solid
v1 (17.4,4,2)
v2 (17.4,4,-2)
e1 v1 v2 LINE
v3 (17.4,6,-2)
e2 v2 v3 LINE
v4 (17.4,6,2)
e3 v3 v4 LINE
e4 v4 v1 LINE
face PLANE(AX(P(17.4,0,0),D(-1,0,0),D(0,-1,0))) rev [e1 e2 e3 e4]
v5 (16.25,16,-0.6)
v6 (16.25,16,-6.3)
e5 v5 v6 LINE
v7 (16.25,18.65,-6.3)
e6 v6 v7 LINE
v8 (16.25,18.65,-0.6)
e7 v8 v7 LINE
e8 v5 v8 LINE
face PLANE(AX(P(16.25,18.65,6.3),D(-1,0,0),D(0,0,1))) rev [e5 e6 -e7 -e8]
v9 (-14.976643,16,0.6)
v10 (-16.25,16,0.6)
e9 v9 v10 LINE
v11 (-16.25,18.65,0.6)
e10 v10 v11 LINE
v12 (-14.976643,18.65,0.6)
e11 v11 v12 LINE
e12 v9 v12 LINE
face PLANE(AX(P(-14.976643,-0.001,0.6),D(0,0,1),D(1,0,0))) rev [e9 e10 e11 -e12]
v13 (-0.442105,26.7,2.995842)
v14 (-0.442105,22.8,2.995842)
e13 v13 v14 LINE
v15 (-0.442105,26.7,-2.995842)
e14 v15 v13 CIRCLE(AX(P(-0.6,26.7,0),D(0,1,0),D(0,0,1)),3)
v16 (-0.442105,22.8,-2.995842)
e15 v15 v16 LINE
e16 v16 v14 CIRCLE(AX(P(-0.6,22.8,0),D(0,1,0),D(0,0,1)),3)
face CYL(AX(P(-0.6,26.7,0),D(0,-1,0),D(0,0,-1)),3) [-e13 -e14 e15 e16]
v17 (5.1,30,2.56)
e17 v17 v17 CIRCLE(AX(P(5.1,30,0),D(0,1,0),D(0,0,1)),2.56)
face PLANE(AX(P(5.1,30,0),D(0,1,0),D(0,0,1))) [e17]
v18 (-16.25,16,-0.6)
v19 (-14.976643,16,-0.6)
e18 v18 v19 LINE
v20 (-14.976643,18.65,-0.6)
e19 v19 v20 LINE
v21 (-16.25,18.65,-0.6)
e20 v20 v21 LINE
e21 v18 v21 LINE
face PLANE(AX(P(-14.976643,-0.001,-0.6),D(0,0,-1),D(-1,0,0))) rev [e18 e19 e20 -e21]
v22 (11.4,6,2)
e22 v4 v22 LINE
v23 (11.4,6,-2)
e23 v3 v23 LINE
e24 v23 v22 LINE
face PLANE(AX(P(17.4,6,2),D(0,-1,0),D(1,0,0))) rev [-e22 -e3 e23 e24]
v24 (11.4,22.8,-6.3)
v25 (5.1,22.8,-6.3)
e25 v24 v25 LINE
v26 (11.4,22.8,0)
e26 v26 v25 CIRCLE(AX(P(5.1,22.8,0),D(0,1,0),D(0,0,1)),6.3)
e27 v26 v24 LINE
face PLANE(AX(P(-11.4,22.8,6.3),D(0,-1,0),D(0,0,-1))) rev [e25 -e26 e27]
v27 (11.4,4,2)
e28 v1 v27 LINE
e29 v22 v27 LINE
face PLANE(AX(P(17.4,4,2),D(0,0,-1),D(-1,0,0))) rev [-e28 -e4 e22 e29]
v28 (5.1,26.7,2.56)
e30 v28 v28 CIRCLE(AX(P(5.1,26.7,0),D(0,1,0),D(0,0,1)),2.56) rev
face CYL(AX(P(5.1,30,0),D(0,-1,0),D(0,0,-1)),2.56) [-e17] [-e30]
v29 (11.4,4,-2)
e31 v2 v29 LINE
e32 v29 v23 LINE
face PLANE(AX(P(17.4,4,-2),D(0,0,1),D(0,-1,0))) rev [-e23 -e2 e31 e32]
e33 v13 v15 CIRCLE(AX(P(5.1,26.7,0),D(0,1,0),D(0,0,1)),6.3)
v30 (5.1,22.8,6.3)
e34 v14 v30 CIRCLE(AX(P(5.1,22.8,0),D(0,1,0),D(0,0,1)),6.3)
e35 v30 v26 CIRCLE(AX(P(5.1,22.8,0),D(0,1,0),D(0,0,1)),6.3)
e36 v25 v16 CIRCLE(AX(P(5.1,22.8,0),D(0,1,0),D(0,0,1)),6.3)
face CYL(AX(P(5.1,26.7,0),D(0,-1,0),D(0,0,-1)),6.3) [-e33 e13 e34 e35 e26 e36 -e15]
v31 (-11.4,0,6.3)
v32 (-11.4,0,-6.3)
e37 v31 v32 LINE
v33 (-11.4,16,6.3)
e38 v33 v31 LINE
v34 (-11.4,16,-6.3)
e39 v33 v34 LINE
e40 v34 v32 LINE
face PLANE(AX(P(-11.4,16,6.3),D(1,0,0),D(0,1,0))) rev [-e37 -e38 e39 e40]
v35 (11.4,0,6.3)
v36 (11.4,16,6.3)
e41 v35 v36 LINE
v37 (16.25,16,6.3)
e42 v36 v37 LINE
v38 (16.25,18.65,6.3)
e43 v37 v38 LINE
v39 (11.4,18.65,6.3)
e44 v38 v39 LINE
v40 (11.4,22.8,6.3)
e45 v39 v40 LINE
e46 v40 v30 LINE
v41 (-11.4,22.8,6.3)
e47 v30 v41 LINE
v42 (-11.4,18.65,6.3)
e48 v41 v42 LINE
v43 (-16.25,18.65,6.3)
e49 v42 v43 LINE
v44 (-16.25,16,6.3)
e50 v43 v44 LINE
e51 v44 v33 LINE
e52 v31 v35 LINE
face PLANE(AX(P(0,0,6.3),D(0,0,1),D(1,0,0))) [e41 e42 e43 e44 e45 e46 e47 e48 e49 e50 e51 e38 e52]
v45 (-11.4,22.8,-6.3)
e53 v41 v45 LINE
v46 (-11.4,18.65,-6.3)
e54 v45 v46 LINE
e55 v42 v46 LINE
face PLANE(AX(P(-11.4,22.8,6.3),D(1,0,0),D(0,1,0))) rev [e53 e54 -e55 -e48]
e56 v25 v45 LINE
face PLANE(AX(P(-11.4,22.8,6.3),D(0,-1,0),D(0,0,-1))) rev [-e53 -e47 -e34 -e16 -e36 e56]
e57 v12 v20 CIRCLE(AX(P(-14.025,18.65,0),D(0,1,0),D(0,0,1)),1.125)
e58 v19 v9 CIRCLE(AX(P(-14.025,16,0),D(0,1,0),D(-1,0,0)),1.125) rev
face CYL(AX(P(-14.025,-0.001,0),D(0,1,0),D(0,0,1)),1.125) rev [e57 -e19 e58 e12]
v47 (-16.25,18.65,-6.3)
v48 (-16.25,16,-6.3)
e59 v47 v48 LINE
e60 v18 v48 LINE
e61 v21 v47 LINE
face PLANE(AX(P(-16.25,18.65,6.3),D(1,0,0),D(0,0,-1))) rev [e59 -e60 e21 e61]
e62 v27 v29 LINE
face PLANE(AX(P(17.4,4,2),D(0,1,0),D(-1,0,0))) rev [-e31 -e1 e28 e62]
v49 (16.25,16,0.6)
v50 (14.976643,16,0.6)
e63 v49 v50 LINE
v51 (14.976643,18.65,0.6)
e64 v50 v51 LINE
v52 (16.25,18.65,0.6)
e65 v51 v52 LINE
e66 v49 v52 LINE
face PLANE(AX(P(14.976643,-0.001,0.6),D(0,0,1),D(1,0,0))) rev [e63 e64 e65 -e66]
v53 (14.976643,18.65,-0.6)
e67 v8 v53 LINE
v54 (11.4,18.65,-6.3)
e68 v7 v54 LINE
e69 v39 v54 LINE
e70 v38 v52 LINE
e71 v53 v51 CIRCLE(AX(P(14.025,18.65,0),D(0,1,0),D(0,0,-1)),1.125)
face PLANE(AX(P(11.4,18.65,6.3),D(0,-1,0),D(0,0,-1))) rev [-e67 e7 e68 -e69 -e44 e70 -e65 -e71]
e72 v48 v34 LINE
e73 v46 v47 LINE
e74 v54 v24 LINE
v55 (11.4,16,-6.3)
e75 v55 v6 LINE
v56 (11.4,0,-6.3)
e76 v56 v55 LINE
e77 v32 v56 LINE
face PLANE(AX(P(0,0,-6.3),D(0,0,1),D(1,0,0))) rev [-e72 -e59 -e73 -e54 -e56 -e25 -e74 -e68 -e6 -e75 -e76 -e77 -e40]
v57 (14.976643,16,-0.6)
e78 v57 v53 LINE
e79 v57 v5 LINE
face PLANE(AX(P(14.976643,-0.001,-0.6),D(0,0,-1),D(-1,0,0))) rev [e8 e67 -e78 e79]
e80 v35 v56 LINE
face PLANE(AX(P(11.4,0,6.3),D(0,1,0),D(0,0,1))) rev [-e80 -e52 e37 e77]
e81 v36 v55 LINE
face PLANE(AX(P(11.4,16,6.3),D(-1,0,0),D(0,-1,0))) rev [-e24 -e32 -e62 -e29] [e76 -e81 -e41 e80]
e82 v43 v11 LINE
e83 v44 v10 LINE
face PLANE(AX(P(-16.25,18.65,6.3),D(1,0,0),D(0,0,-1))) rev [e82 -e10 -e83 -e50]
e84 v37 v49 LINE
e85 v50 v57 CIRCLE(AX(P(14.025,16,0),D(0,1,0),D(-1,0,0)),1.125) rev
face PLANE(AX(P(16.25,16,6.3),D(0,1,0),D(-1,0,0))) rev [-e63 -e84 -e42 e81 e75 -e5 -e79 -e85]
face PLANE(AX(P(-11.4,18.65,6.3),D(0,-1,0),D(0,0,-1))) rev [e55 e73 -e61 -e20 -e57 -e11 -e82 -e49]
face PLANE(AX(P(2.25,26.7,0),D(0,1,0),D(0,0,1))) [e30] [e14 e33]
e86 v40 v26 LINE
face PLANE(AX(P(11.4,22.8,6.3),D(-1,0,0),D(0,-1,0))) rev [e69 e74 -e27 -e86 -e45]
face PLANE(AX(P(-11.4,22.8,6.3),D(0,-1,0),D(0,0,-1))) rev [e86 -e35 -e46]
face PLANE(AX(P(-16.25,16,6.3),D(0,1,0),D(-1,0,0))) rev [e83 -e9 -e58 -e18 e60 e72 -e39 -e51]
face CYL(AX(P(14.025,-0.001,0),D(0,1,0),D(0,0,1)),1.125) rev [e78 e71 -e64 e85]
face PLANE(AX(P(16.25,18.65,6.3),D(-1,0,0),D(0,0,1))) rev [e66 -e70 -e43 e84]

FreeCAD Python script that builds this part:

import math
import FreeCAD as App
import Part
import Sketcher
from FreeCAD import Vector
Q = App.Units.Quantity


def add_polygon(sketch, points):
    """Adds a closed chain of lines whose ends are joined by coincident constraints."""
    first, n = sketch.GeometryCount, len(points)
    for a, b in zip(points, points[1:] + points[:1]):
        sketch.addGeometry(Part.LineSegment(App.Vector(*a, 0), App.Vector(*b, 0)), False)
    for i in range(n):
        sketch.addConstraint(Sketcher.Constraint("Coincident", first + i, 2, first + (i + 1) % n, 1))

doc = App.newDocument("Part")
body = doc.addObject("PartDesign::Body", "Body")

# Sketch on XY plane
sketch1 = body.newObject("Sketcher::SketchObject", "Sketch")
sketch1.AttachmentSupport = (doc.getObject("XY_Plane"), [""])
sketch1.MapMode = "FlatFace"
add_polygon(sketch1, [(11.4, 22.8), (-11.4, 22.8), (-11.4, 18.6), (-16.2, 18.6), (-16.2, 16), (-11.4, 16), (-11.4, 0), (11.4, 0), (11.4, 16), (16.2, 16), (16.2, 18.6), (11.4, 18.6)])  # lines 0-11
sketch1.addConstraint(Sketcher.Constraint("Horizontal", 0))
sketch1.addConstraint(Sketcher.Constraint("Vertical", 1))
sketch1.addConstraint(Sketcher.Constraint("Horizontal", 2))
sketch1.addConstraint(Sketcher.Constraint("Vertical", 3))
sketch1.addConstraint(Sketcher.Constraint("Horizontal", 4))
sketch1.addConstraint(Sketcher.Constraint("Vertical", 5))
sketch1.addConstraint(Sketcher.Constraint("Horizontal", 6))
sketch1.addConstraint(Sketcher.Constraint("Vertical", 7))
sketch1.addConstraint(Sketcher.Constraint("Horizontal", 8))
sketch1.addConstraint(Sketcher.Constraint("Vertical", 9))
sketch1.addConstraint(Sketcher.Constraint("Horizontal", 10))
sketch1.addConstraint(Sketcher.Constraint("Vertical", 11))
sketch1.addConstraint(Sketcher.Constraint("Symmetric", 5, 2, 6, 2, -1, 1))
sketch1.addConstraint(Sketcher.Constraint("Symmetric", 3, 2, 8, 2, -2))
sketch1.addConstraint(Sketcher.Constraint("Symmetric", 1, 2, 10, 2, -2))
sketch1.addConstraint(Sketcher.Constraint("Vertical", 1, 2, 4, 2))
sketch1.addConstraint(Sketcher.Constraint("DistanceY", 5, 2, 5, 1, Q("16 mm")))
sketch1.addConstraint(Sketcher.Constraint("DistanceX", 0, 2, 0, 1, Q("22.8 mm")))
sketch1.addConstraint(Sketcher.Constraint("DistanceX", 2, 2, 2, 1, Q("4.85 mm")))
sketch1.addConstraint(Sketcher.Constraint("DistanceY", 1, 2, 1, 1, Q("4.15 mm")))
sketch1.addConstraint(Sketcher.Constraint("DistanceY", 3, 2, 3, 1, Q("2.65 mm")))
pad1 = body.newObject("PartDesign::Pad", "Pad")
pad1.Profile = sketch1
pad1.Length = 12.6
pad1.Midplane = True

# Sketch on XZ plane
sketch2 = body.newObject("Sketcher::SketchObject", "Sketch001")
sketch2.AttachmentSupport = (doc.getObject("XZ_Plane"), [""])
sketch2.MapMode = "FlatFace"
sketch2.AttachmentOffset = App.Placement(Vector(0, 0, -22.8), App.Rotation())
sketch2.addGeometry(Part.ArcOfCircle(Part.Circle(Vector(5.1, 0, 0), Vector(0, 0, 1), 6.3), math.radians(-152), math.radians(152)), False)
sketch2.addGeometry(Part.ArcOfCircle(Part.Circle(Vector(-0.6, 0, 0), Vector(0, 0, 1), 3), math.radians(87), math.radians(273)), False)
sketch2.addConstraint(Sketcher.Constraint("Coincident", 0, 1, 1, 2))
sketch2.addConstraint(Sketcher.Constraint("Coincident", 1, 1, 0, 2))
sketch2.addConstraint(Sketcher.Constraint("Symmetric", 0, 1, 1, 1, -1))
sketch2.addConstraint(Sketcher.Constraint("Radius", 1, Q("3 mm")))
sketch2.addConstraint(Sketcher.Constraint("Radius", 0, Q("6.3 mm")))
sketch2.addConstraint(Sketcher.Constraint("DistanceX", -1, 1, 0, 3, Q("5.1 mm")))
sketch2.addConstraint(Sketcher.Constraint("DistanceX", 1, 3, -1, 1, Q("0.6 mm")))
pad2 = body.newObject("PartDesign::Pad", "Pad001")
pad2.Profile = sketch2
pad2.Length = 3.9
pad2.Reversed = True

# Sketch on XZ plane
sketch3 = body.newObject("Sketcher::SketchObject", "Sketch002")
sketch3.AttachmentSupport = (doc.getObject("XZ_Plane"), [""])
sketch3.MapMode = "FlatFace"
sketch3.addGeometry(Part.Circle(Vector(5.1, 0, 0), Vector(0, 0, 1), 2.6), False)
sketch3.addConstraint(Sketcher.Constraint("PointOnObject", 0, 3, -1))
sketch3.addConstraint(Sketcher.Constraint("Diameter", 0, Q("5.12 mm")))
sketch3.addConstraint(Sketcher.Constraint("DistanceX", -1, 1, 0, 3, Q("5.1 mm")))
pad3 = body.newObject("PartDesign::Pad", "Pad002")
pad3.Profile = sketch3
pad3.Length = 30
pad3.Reversed = True

# Sketch on XZ plane
sketch4 = body.newObject("Sketcher::SketchObject", "Sketch003")
sketch4.AttachmentSupport = (doc.getObject("XZ_Plane"), [""])
sketch4.MapMode = "FlatFace"
sketch4.AttachmentOffset = App.Placement(Vector(0, 0, -18.65), App.Rotation())
sketch4.addGeometry(Part.LineSegment(Vector(-15, -0.6, 0), Vector(-16.2, -0.6, 0)), False)
sketch4.addGeometry(Part.LineSegment(Vector(-16.2, -0.6, 0), Vector(-16.2, 0.6, 0)), False)
sketch4.addGeometry(Part.LineSegment(Vector(-16.2, 0.6, 0), Vector(-15, 0.6, 0)), False)
sketch4.addGeometry(Part.ArcOfCircle(Part.Circle(Vector(-14, 0, 0), Vector(0, 0, 1), 1.1), math.radians(-148), math.radians(148)), False)
sketch4.addConstraint(Sketcher.Constraint("Coincident", 0, 2, 1, 1))
sketch4.addConstraint(Sketcher.Constraint("Coincident", 1, 2, 2, 1))
sketch4.addConstraint(Sketcher.Constraint("Coincident", 2, 2, 3, 2))
sketch4.addConstraint(Sketcher.Constraint("Coincident", 3, 1, 0, 1))
sketch4.addConstraint(Sketcher.Constraint("Horizontal", 0))
sketch4.addConstraint(Sketcher.Constraint("Vertical", 1))
sketch4.addConstraint(Sketcher.Constraint("Horizontal", 2))
sketch4.addConstraint(Sketcher.Constraint("Symmetric", 2, 2, 3, 1, -1))
sketch4.addConstraint(Sketcher.Constraint("DistanceY", 1, 1, 1, 2, Q("1.2 mm")))
sketch4.addConstraint(Sketcher.Constraint("Radius", 3, Q("1.125 mm")))
sketch4.addConstraint(Sketcher.Constraint("DistanceX", 0, 2, -1, 1, Q("16.25 mm")))
sketch4.addConstraint(Sketcher.Constraint("DistanceX", 3, 3, -1, 1, Q("14.025 mm")))
pocket1 = body.newObject("PartDesign::Pocket", "Pocket")
pocket1.Profile = sketch4
pocket1.Type = "UpToFirst"
pocket1.Reversed = True

# Sketch on XZ plane
sketch5 = body.newObject("Sketcher::SketchObject", "Sketch004")
sketch5.AttachmentSupport = (doc.getObject("XZ_Plane"), [""])
sketch5.MapMode = "FlatFace"
sketch5.AttachmentOffset = App.Placement(Vector(0, 0, -18.65), App.Rotation())
sketch5.addGeometry(Part.LineSegment(Vector(16.2, 0.6, 0), Vector(16.2, -0.6, 0)), False)
sketch5.addGeometry(Part.LineSegment(Vector(16.2, -0.6, 0), Vector(15, -0.6, 0)), False)
sketch5.addGeometry(Part.ArcOfCircle(Part.Circle(Vector(14, 0, 0), Vector(0, 0, 1), 1.1), math.radians(32), math.radians(328)), False)
sketch5.addGeometry(Part.LineSegment(Vector(15, 0.6, 0), Vector(16.2, 0.6, 0)), False)
sketch5.addConstraint(Sketcher.Constraint("Coincident", 0, 2, 1, 1))
sketch5.addConstraint(Sketcher.Constraint("Coincident", 1, 2, 2, 2))
sketch5.addConstraint(Sketcher.Constraint("Coincident", 2, 1, 3, 1))
sketch5.addConstraint(Sketcher.Constraint("Coincident", 3, 2, 0, 1))
sketch5.addConstraint(Sketcher.Constraint("Vertical", 0))
sketch5.addConstraint(Sketcher.Constraint("Horizontal", 1))
sketch5.addConstraint(Sketcher.Constraint("Horizontal", 3))
sketch5.addConstraint(Sketcher.Constraint("Symmetric", 1, 2, 2, 1, -1))
sketch5.addConstraint(Sketcher.Constraint("DistanceY", 0, 2, 0, 1, Q("1.2 mm")))
sketch5.addConstraint(Sketcher.Constraint("Radius", 2, Q("1.125 mm")))
sketch5.addConstraint(Sketcher.Constraint("DistanceX", -1, 1, 0, 2, Q("16.25 mm")))
sketch5.addConstraint(Sketcher.Constraint("DistanceX", -1, 1, 2, 3, Q("14.025 mm")))
pocket2 = body.newObject("PartDesign::Pocket", "Pocket001")
pocket2.Profile = sketch5
pocket2.Type = "UpToFirst"
pocket2.Reversed = True

# Sketch on YZ plane
sketch6 = body.newObject("Sketcher::SketchObject", "Sketch005")
sketch6.AttachmentSupport = (doc.getObject("YZ_Plane"), [""])
sketch6.MapMode = "FlatFace"
sketch6.AttachmentOffset = App.Placement(Vector(0, 0, 11.4), App.Rotation())
add_polygon(sketch6, [(6, 2), (4, 2), (4, -2), (6, -2)])  # lines 0-3
sketch6.addConstraint(Sketcher.Constraint("Horizontal", 0))
sketch6.addConstraint(Sketcher.Constraint("Vertical", 1))
sketch6.addConstraint(Sketcher.Constraint("Horizontal", 2))
sketch6.addConstraint(Sketcher.Constraint("Vertical", 3))
sketch6.addConstraint(Sketcher.Constraint("DistanceX", 0, 2, 0, 1, Q("2 mm")))
sketch6.addConstraint(Sketcher.Constraint("DistanceY", 1, 2, 1, 1, Q("4 mm")))
sketch6.addConstraint(Sketcher.Constraint("DistanceX", -1, 1, 0, 2, Q("4 mm")))
sketch6.addConstraint(Sketcher.Constraint("DistanceY", -1, 1, 0, 2, Q("2 mm")))
pad4 = body.newObject("PartDesign::Pad", "Pad003")
pad4.Profile = sketch6
pad4.Length = 6

doc.recompute()
